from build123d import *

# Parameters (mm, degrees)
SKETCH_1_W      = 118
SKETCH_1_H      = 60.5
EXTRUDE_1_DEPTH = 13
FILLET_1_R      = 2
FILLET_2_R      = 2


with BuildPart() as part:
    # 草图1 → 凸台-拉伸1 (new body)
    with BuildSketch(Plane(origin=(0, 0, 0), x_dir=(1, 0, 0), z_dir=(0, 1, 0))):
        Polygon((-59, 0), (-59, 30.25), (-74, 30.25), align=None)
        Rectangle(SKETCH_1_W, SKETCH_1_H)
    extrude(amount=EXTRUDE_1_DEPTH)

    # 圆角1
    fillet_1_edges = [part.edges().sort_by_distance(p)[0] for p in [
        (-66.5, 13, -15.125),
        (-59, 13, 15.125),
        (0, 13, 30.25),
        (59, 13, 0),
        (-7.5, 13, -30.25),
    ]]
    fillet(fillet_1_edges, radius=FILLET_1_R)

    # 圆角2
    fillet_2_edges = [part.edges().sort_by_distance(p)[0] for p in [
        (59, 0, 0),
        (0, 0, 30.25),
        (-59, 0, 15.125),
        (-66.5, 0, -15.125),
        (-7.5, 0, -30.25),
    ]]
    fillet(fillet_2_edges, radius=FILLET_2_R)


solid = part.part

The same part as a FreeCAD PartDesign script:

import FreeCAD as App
import Part
import Sketcher
from FreeCAD import Vector


def edges_at(feature, points):
    """Names of the edges that pass closest to the given points."""
    edges = feature.Shape.Edges
    near = lambda p: min(range(len(edges)), key=lambda i: edges[i].distToShape(Part.Vertex(*p))[0])
    return sorted({f"Edge{near(p) + 1}" for p in points})


def add_polygon(sketch, points):
    """Adds a closed chain of lines whose ends are joined by coincident constraints."""
    first, n = sketch.GeometryCount, len(points)
    for a, b in zip(points, points[1:] + points[:1]):
        sketch.addGeometry(Part.LineSegment(App.Vector(*a, 0), App.Vector(*b, 0)), False)
    for i in range(n):
        sketch.addConstraint(Sketcher.Constraint("Coincident", first + i, 2, first + (i + 1) % n, 1))

doc = App.newDocument("Part")
params = doc.addObject("Spreadsheet::Sheet", "Params")
for row, (alias, value) in enumerate([
    ("sketch1_width", "118 mm"),
    ("sketch1_width2", "133 mm"),
    ("sketch1_height", "60.5 mm"),
    ("pad1_length", "13 mm"),
    ("fillet_radius", "2 mm"),
    ("fillet2_radius", "2 mm"),
], start=1):
    params.set(f"A{row}", alias)
    params.set(f"B{row}", "=" + value)
    params.setAlias(f"B{row}", alias)

body = doc.addObject("PartDesign::Body", "Body")

sketch1 = body.newObject("Sketcher::SketchObject", "Sketch")
sketch1.AttachmentSupport = (doc.getObject("XZ_Plane"), [""])
sketch1.MapMode = "FlatFace"
add_polygon(sketch1, [(-74, -30.25), (-59, 0), (-59, 30.25), (59, 30.25), (59, -30.25)])
sketch1.addConstraint([
    Sketcher.Constraint("Vertical", 1),
    Sketcher.Constraint("Horizontal", 2),
    Sketcher.Constraint("Vertical", 3),
    Sketcher.Constraint("Horizontal", 4),
    Sketcher.Constraint("Symmetric", 1, 2, 3, 2, -1, 1),
    Sketcher.Constraint("PointOnObject", 0, 2, -1),
    Sketcher.Constraint("DistanceX", 2, 1, 2, 2, 118.0),
    Sketcher.Constraint("DistanceX", 4, 2, 4, 1, 133.0),
    Sketcher.Constraint("DistanceY", 3, 2, 3, 1, 60.5),
])
sketch1.setExpression("Constraints[11]", "Params.sketch1_width")
sketch1.setExpression("Constraints[12]", "Params.sketch1_width2")
sketch1.setExpression("Constraints[13]", "Params.sketch1_height")
pad1 = body.newObject("PartDesign::Pad", "Pad")
pad1.Profile = sketch1
pad1.setExpression("Length", "Params.pad1_length")
pad1.Reversed = True
doc.recompute()

fillet = body.newObject("PartDesign::Fillet", "Fillet")
fillet.Base = (pad1, edges_at(pad1, [
    (-66.5, 13, -15.125),
    (-59, 13, 15.125),
    (0, 13, 30.25),
    (59, 13, 0),
    (-7.5, 13, -30.25),
]))
fillet.setExpression("Radius", "Params.fillet_radius")
doc.recompute()

fillet2 = body.newObject("PartDesign::Fillet", "Fillet001")
fillet2.Base = (fillet, edges_at(fillet, [
    (59, 0, 0),
    (0, 0, 30.25),
    (-59, 0, 15.125),
    (-66.5, 0, -15.125),
    (-7.5, 0, -30.25),
]))
fillet2.setExpression("Radius", "Params.fillet2_radius")

doc.recompute()
